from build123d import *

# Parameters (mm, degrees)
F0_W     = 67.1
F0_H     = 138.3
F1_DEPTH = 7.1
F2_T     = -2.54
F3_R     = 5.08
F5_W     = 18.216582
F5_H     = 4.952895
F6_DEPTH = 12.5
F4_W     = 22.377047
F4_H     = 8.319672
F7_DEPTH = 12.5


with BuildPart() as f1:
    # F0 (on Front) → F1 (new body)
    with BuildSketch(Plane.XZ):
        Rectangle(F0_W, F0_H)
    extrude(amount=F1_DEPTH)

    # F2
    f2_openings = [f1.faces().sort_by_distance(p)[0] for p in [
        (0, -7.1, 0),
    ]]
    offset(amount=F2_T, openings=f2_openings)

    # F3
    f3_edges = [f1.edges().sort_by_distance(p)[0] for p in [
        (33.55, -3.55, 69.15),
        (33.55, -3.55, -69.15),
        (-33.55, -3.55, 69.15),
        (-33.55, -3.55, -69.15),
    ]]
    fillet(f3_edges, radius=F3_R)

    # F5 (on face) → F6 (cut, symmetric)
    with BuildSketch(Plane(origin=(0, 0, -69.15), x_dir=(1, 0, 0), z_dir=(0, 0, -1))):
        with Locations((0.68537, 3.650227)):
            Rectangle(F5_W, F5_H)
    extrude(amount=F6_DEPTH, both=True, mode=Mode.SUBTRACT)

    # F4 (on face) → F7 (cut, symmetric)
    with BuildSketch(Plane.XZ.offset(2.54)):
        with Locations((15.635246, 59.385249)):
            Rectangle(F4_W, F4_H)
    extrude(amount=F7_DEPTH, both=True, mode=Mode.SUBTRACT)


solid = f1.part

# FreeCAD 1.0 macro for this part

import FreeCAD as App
import Part
import Sketcher

V = App.Vector
Q = App.Units.Quantity


def edges_at(feature, points):
    """Names of the edges that pass closest to the given points."""
    edges = feature.Shape.Edges
    near = lambda p: min(range(len(edges)), key=lambda i: edges[i].distToShape(Part.Vertex(*p))[0])
    return sorted({f"Edge{near(p) + 1}" for p in points})


def faces_at(feature, points):
    """Names of the faces that lie closest to the given points."""
    faces = feature.Shape.Faces
    near = lambda p: min(range(len(faces)), key=lambda i: faces[i].distToShape(Part.Vertex(*p))[0])
    return sorted({f"Face{near(p) + 1}" for p in points})


def add_polygon(sketch, points):
    """Adds a closed chain of lines whose ends are joined by coincident constraints."""
    first, n = sketch.GeometryCount, len(points)
    for a, b in zip(points, points[1:] + points[:1]):
        sketch.addGeometry(Part.LineSegment(App.Vector(*a, 0), App.Vector(*b, 0)), False)
    for i in range(n):
        sketch.addConstraint(Sketcher.Constraint("Coincident", first + i, 2, first + (i + 1) % n, 1))

doc = App.newDocument("Part")
body = doc.addObject("PartDesign::Body", "Body")

# Sketch on XZ plane
sketch1 = body.newObject("Sketcher::SketchObject", "Sketch")
sketch1.AttachmentSupport = (doc.getObject("XZ_Plane"), [""])
sketch1.MapMode = "FlatFace"
add_polygon(sketch1, [(-34, 69), (-34, -69), (34, -69), (34, 69)])  # lines 0-3
sketch1.addConstraint([
    Sketcher.Constraint("Vertical", 0),
    Sketcher.Constraint("Horizontal", 1),
    Sketcher.Constraint("Vertical", 2),
    Sketcher.Constraint("Horizontal", 3),
    Sketcher.Constraint("Symmetric", 0, 2, 2, 2, -1, 1),
    Sketcher.Constraint("DistanceX", 1, 1, 1, 2, Q("67.1 mm")),
    Sketcher.Constraint("DistanceY", 0, 2, 0, 1, Q("138.3 mm")),
])
pad1 = body.newObject("PartDesign::Pad", "Pad")
pad1.Profile = sketch1
pad1.Length = 7.1
doc.recompute()

thickness = body.newObject("PartDesign::Thickness", "Thickness")
thickness.Base = (pad1, faces_at(pad1, [(0, -7.1, 0)]))
thickness.Value = 2.54
thickness.Reversed = True
thickness.Join = "Arc"
doc.recompute()

fillet = body.newObject("PartDesign::Fillet", "Fillet")
fillet.Base = (thickness, edges_at(thickness, [
    (33.55, -3.55, 69.15),
    (33.55, -3.55, -69.15),
    (-33.55, -3.55, 69.15),
    (-33.55, -3.55, -69.15),
]))
fillet.Radius = 5.08

# Sketch on XY plane
sketch2 = body.newObject("Sketcher::SketchObject", "Sketch001")
sketch2.AttachmentSupport = (doc.getObject("XY_Plane"), [""])
sketch2.MapMode = "FlatFace"
sketch2.AttachmentOffset = App.Placement(V(0, 0, -69.15), App.Rotation())
add_polygon(sketch2, [(-8.4, -6.1), (-8.4, -1.2), (9.8, -1.2), (9.8, -6.1)])  # lines 0-3
sketch2.addConstraint([
    Sketcher.Constraint("Vertical", 0),
    Sketcher.Constraint("Horizontal", 1),
    Sketcher.Constraint("Vertical", 2),
    Sketcher.Constraint("Horizontal", 3),
    Sketcher.Constraint("DistanceX", 1, 1, 1, 2, Q("18.216582 mm")),
    Sketcher.Constraint("DistanceY", 0, 1, 0, 2, Q("4.952895 mm")),
    Sketcher.Constraint("DistanceX", 0, 2, -1, 1, Q("8.422921 mm")),
    Sketcher.Constraint("DistanceY", 0, 2, -1, 1, Q("1.173779 mm")),
])
pocket1 = body.newObject("PartDesign::Pocket", "Pocket")
pocket1.Profile = sketch2
pocket1.Length = 25
pocket1.Midplane = True

# Sketch on XZ plane
sketch3 = body.newObject("Sketcher::SketchObject", "Sketch002")
sketch3.AttachmentSupport = (doc.getObject("XZ_Plane"), [""])
sketch3.MapMode = "FlatFace"
sketch3.AttachmentOffset = App.Placement(V(0, 0, 2.54), App.Rotation())
add_polygon(sketch3, [(4, 64), (4, 55), (27, 55), (27, 64)])  # lines 0-3
sketch3.addConstraint([
    Sketcher.Constraint("Vertical", 0),
    Sketcher.Constraint("Horizontal", 1),
    Sketcher.Constraint("Vertical", 2),
    Sketcher.Constraint("Horizontal", 3),
    Sketcher.Constraint("DistanceY", 0, 2, 0, 1, Q("8.319672 mm")),
    Sketcher.Constraint("DistanceX", 1, 1, 1, 2, Q("22.377047 mm")),
    Sketcher.Constraint("DistanceX", -1, 1, 1, 2, Q("26.82377 mm")),
    Sketcher.Constraint("DistanceY", -1, 1, 0, 2, Q("55.225413 mm")),
])
pocket2 = body.newObject("PartDesign::Pocket", "Pocket001")
pocket2.Profile = sketch3
pocket2.Length = 25
pocket2.Midplane = True

doc.recompute()
